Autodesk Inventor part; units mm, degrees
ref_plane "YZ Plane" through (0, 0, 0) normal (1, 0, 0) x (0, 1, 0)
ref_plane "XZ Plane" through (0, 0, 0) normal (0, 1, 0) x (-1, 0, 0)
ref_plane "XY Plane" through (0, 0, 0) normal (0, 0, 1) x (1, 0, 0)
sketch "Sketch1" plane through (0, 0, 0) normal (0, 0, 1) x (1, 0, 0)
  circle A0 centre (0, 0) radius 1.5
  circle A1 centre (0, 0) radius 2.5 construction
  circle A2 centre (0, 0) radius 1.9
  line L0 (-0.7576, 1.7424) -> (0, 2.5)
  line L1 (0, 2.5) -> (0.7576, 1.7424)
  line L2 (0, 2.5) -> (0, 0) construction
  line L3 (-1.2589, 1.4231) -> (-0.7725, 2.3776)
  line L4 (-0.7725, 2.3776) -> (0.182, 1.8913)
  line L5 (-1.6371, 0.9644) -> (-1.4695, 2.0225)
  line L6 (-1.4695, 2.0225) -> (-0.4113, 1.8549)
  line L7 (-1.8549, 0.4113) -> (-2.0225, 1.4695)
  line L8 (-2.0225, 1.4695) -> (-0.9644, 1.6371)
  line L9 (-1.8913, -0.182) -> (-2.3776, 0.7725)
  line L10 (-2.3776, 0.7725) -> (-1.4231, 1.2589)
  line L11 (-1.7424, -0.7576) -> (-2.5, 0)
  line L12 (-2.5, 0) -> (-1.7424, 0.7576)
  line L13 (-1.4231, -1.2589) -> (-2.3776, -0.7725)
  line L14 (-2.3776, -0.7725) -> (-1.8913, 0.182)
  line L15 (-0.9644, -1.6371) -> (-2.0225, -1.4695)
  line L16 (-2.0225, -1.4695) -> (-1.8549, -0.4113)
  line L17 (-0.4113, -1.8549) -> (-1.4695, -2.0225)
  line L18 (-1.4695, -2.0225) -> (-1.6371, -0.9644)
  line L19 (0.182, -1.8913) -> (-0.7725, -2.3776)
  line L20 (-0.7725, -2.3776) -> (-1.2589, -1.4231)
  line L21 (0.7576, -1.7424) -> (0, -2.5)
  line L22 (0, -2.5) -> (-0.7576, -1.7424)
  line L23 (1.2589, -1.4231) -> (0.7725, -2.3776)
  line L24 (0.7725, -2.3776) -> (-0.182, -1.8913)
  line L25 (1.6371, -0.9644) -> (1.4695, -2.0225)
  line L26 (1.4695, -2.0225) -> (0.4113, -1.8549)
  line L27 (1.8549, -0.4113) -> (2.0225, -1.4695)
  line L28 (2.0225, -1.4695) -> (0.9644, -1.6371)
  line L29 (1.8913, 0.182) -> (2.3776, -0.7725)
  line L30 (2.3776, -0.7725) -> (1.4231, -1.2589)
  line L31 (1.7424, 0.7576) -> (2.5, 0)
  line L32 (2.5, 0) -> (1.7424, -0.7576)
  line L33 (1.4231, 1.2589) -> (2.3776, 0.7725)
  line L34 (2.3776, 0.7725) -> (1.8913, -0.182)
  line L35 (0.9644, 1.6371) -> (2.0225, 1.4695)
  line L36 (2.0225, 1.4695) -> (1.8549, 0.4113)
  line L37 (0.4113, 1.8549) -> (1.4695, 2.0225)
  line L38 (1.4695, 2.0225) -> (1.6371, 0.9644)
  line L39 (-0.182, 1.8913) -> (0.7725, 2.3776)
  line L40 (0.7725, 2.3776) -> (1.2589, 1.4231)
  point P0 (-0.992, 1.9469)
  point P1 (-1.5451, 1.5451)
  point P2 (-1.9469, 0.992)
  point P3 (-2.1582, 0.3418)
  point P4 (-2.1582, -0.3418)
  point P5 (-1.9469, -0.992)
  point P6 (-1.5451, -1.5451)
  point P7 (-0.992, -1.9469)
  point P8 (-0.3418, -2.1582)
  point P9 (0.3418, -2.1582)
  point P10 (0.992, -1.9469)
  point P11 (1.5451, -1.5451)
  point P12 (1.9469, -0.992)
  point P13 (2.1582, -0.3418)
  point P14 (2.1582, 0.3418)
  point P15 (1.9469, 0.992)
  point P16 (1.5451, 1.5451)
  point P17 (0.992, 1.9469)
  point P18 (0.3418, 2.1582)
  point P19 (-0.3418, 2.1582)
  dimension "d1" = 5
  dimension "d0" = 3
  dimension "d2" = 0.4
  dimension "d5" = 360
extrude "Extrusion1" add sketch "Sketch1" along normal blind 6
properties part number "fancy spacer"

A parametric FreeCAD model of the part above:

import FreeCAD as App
import Part
import Sketcher
Q = App.Units.Quantity


def add_polygon(sketch, points):
    """Adds a closed chain of lines whose ends are joined by coincident constraints."""
    first, n = sketch.GeometryCount, len(points)
    for a, b in zip(points, points[1:] + points[:1]):
        sketch.addGeometry(Part.LineSegment(App.Vector(*a, 0), App.Vector(*b, 0)), False)
    for i in range(n):
        sketch.addConstraint(Sketcher.Constraint("Coincident", first + i, 2, first + (i + 1) % n, 1))

doc = App.newDocument("Part")
body = doc.addObject("PartDesign::Body", "Body")

sketch1 = body.newObject("Sketcher::SketchObject", "Sketch")
sketch1.AttachmentSupport = (doc.getObject("XY_Plane"), [""])
sketch1.MapMode = "FlatFace"
add_polygon(sketch1, [(2.158178, -0.341822), (2.5, 0), (2.158178, 0.341822), (2.3776, 0.7725), (1.946871, 0.991993), (2.0225, 1.4695), (1.545116, 1.545116), (1.4695, 2.0225), (0.991993, 1.946871), (0.7725, 2.3776), (0.341822, 2.158178), (0, 2.5), (-0.341822, 2.158178), (-0.7725, 2.3776), (-0.991993, 1.946871), (-1.4695, 2.0225), (-1.545116, 1.545116), (-2.0225, 1.4695), (-1.946871, 0.991993), (-2.3776, 0.7725), (-2.158178, 0.341822), (-2.5, 0), (-2.158178, -0.341822), (-2.3776, -0.7725), (-1.946871, -0.991993), (-2.0225, -1.4695), (-1.545116, -1.545116), (-1.4695, -2.0225), (-0.991993, -1.946871), (-0.7725, -2.3776), (-0.341822, -2.158178), (0, -2.5), (0.341822, -2.158178), (0.7725, -2.3776), (0.991993, -1.946871), (1.4695, -2.0225), (1.545116, -1.545116), (2.0225, -1.4695), (1.946871, -0.991993), (2.3776, -0.7725)])
sketch1.addGeometry(Part.Circle(App.Vector(0, 0, 0), App.Vector(0, 0, 1), 1.5), False)
sketch1.addConstraint([
    Sketcher.Constraint("Coincident", 40, 3, -1, 1),
    Sketcher.Constraint("Symmetric", 0, 2, 20, 2, -1, 1),
    Sketcher.Constraint("Symmetric", 1, 2, 21, 2, -1, 1),
    Sketcher.Constraint("Symmetric", 2, 2, 22, 2, -1, 1),
    Sketcher.Constraint("Symmetric", 3, 2, 23, 2, -1, 1),
    Sketcher.Constraint("Symmetric", 4, 2, 24, 2, -1, 1),
    Sketcher.Constraint("Symmetric", 5, 2, 25, 2, -1, 1),
    Sketcher.Constraint("Symmetric", 6, 2, 26, 2, -1, 1),
    Sketcher.Constraint("Symmetric", 7, 2, 27, 2, -1, 1),
    Sketcher.Constraint("Symmetric", 8, 2, 28, 2, -1, 1),
    Sketcher.Constraint("Symmetric", 9, 2, 29, 2, -1, 1),
    Sketcher.Constraint("Symmetric", 10, 2, 30, 2, -1, 1),
    Sketcher.Constraint("Symmetric", 11, 2, 31, 2, -1, 1),
    Sketcher.Constraint("Symmetric", 12, 2, 32, 2, -1, 1),
    Sketcher.Constraint("Symmetric", 13, 2, 33, 2, -1, 1),
    Sketcher.Constraint("Symmetric", 14, 2, 34, 2, -1, 1),
    Sketcher.Constraint("Symmetric", 15, 2, 35, 2, -1, 1),
    Sketcher.Constraint("Symmetric", 16, 2, 36, 2, -1, 1),
    Sketcher.Constraint("Symmetric", 17, 2, 37, 2, -1, 1),
    Sketcher.Constraint("Symmetric", 18, 2, 38, 2, -1, 1),
    Sketcher.Constraint("Symmetric", 19, 2, 39, 2, -1, 1),
    Sketcher.Constraint("Symmetric", 9, 2, 11, 2, -2),
    Sketcher.Constraint("Symmetric", 8, 2, 12, 2, -2),
    Sketcher.Constraint("Symmetric", 7, 2, 13, 2, -2),
    Sketcher.Constraint("Symmetric", 6, 2, 14, 2, -2),
    Sketcher.Constraint("Symmetric", 5, 2, 15, 2, -2),
    Sketcher.Constraint("Symmetric", 4, 2, 16, 2, -2),
    Sketcher.Constraint("Symmetric", 3, 2, 17, 2, -2),
    Sketcher.Constraint("Symmetric", 2, 2, 18, 2, -2),
    Sketcher.Constraint("Symmetric", 1, 2, 19, 2, -2),
    Sketcher.Constraint("PointOnObject", 0, 2, -1),
    Sketcher.Constraint("PointOnObject", 10, 2, -2),
    Sketcher.Constraint("Perpendicular", 0, 1),
    Sketcher.Constraint("Perpendicular", 2, 3),
    Sketcher.Constraint("Perpendicular", 4, 5),
    Sketcher.Constraint("Perpendicular", 6, 7),
    Sketcher.Constraint("Perpendicular", 8, 9),
    Sketcher.Constraint("Parallel", 1, 10),
    Sketcher.Constraint("Parallel", 3, 12),
    Sketcher.Constraint("Parallel", 5, 14),
    Sketcher.Constraint("Equal", 1, 2),
    Sketcher.Constraint("Equal", 2, 3),
    Sketcher.Constraint("Equal", 3, 4),
    Sketcher.Constraint("Equal", 4, 5),
    Sketcher.Constraint("Equal", 5, 6),
    Sketcher.Constraint("Equal", 6, 7),
    Sketcher.Constraint("Equal", 7, 8),
    Sketcher.Constraint("Equal", 8, 9),
    Sketcher.Constraint("Equal", 9, 10),
    Sketcher.Constraint("Diameter", 40, Q("3 mm")),
    Sketcher.Constraint("Angle", 4, Q("81.0001 deg")),
    Sketcher.Constraint("DistanceX", -1, 1, 0, 2, Q("2.5 mm")),
    Sketcher.Constraint("DistanceY", 2, 2, 6, 2, Q("1.25 mm")),
])
pad1 = body.newObject("PartDesign::Pad", "Pad")
pad1.Profile = sketch1
pad1.Length = 6

doc.recompute()
